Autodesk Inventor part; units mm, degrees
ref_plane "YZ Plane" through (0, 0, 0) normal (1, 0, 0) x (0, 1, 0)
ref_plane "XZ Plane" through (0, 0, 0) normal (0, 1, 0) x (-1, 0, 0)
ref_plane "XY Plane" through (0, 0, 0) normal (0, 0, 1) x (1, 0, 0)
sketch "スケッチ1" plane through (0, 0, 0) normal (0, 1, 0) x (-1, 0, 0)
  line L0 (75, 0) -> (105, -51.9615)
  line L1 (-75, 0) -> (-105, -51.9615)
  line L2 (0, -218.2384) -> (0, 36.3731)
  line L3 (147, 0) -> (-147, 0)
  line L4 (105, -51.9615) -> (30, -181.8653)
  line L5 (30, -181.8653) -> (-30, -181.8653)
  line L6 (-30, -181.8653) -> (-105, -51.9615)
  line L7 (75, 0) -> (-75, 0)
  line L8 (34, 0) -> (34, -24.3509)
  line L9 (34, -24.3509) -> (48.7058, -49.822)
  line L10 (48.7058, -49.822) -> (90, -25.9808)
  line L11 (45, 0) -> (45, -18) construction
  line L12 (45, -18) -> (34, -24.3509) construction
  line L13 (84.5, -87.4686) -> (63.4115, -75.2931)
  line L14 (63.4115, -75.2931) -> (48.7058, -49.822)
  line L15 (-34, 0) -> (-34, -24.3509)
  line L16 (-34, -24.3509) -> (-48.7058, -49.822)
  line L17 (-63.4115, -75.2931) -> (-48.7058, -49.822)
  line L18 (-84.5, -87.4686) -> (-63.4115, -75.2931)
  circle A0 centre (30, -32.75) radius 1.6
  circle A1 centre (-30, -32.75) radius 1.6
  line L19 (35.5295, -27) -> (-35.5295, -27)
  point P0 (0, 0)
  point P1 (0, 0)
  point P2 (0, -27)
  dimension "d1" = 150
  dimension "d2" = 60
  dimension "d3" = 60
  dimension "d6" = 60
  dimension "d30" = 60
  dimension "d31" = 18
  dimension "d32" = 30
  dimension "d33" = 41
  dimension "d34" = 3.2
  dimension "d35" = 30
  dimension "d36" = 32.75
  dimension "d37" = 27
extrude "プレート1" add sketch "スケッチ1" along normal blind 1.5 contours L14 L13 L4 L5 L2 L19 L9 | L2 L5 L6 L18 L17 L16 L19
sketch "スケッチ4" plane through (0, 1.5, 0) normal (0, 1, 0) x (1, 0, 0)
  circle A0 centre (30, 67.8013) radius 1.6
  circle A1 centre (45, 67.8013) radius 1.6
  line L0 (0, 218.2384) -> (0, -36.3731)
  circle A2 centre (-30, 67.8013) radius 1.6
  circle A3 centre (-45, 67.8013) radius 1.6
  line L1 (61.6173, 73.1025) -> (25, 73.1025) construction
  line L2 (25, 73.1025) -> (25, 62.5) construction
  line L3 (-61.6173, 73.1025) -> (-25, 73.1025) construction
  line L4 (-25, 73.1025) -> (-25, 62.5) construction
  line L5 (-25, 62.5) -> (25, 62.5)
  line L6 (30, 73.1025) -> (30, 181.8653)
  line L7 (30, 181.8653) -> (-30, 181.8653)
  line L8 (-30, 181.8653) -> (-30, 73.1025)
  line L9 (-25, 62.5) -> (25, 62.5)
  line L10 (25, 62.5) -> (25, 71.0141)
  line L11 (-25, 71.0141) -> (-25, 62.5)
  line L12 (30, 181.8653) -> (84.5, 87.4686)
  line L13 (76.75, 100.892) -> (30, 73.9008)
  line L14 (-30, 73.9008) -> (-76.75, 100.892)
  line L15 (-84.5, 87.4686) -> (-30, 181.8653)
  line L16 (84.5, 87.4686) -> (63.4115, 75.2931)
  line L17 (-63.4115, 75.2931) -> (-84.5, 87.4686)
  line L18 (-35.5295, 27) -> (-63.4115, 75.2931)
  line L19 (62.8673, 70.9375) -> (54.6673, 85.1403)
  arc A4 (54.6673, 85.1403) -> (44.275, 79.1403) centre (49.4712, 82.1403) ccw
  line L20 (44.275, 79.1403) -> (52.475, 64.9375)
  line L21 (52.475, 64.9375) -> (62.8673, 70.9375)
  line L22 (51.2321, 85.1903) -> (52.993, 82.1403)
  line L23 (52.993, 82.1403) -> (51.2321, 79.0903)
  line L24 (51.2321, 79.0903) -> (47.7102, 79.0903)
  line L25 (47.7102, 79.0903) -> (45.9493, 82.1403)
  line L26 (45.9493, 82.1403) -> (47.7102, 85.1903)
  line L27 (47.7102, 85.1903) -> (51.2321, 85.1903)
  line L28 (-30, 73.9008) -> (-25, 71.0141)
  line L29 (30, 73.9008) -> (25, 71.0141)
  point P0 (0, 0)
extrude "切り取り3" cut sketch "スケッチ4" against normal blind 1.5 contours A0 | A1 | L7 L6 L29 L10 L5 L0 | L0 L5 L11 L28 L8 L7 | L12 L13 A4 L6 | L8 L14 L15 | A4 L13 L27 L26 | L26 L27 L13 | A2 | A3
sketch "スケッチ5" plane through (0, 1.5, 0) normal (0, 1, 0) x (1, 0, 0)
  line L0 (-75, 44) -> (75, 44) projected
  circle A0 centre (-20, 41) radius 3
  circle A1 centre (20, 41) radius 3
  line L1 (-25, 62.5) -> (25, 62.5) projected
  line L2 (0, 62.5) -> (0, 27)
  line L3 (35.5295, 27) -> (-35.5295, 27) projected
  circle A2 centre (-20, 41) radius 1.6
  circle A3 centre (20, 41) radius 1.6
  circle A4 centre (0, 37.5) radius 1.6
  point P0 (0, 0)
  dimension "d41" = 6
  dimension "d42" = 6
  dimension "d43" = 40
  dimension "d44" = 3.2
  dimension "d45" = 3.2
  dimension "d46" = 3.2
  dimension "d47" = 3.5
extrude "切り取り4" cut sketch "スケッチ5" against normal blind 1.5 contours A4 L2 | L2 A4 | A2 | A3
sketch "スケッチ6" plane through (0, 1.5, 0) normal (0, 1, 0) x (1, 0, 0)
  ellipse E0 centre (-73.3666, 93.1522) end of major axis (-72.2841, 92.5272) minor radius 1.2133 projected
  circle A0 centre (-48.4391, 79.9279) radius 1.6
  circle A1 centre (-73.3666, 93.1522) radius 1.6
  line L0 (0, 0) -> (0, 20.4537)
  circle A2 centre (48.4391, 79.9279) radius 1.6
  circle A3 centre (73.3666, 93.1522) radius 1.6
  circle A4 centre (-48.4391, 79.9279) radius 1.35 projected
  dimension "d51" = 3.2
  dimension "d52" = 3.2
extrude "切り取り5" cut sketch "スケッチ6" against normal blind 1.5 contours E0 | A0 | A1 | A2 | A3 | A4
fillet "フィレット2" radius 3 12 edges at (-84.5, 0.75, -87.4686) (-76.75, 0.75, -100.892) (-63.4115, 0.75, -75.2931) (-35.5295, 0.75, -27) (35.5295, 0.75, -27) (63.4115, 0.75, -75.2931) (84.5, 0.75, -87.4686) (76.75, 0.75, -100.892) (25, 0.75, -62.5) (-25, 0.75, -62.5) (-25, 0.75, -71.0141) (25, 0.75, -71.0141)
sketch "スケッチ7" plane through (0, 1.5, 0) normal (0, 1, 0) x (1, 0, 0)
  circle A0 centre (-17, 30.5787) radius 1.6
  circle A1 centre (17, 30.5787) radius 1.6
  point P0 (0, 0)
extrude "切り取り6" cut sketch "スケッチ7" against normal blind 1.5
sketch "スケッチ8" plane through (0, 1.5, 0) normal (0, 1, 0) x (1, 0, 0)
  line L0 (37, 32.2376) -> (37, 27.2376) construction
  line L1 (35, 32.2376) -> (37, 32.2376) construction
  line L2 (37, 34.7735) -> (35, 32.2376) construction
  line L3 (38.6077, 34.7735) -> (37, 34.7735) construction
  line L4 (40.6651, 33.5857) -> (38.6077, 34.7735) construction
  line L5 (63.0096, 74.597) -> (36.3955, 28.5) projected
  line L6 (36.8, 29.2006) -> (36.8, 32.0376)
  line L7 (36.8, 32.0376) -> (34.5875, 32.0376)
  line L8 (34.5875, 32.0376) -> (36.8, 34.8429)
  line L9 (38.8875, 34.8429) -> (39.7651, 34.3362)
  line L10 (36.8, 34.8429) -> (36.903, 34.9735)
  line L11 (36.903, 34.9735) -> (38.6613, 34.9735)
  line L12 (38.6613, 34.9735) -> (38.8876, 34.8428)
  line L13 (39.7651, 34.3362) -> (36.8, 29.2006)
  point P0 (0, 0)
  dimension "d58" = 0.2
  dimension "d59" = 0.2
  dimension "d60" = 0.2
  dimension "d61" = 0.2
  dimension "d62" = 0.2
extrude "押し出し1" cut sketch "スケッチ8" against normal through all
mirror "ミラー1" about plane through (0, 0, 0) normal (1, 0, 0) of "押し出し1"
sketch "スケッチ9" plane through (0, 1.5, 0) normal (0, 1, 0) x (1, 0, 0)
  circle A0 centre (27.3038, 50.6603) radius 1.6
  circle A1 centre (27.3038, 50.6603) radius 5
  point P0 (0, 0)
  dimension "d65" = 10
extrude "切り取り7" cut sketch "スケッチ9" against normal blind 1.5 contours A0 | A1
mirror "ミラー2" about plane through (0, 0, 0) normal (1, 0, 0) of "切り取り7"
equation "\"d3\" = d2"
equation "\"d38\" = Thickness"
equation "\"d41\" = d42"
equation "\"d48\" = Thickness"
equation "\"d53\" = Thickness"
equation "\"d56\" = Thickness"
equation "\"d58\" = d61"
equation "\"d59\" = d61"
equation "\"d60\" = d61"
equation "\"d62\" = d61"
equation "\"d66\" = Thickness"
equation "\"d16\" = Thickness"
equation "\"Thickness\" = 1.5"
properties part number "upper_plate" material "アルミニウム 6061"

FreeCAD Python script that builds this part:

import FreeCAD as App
import Part
import Sketcher
Q = App.Units.Quantity


def edges_at(feature, points):
    """Names of the edges that pass closest to the given points."""
    edges = feature.Shape.Edges
    near = lambda p: min(range(len(edges)), key=lambda i: edges[i].distToShape(Part.Vertex(*p))[0])
    return sorted({f"Edge{near(p) + 1}" for p in points})


def add_polygon(sketch, points):
    """Adds a closed chain of lines whose ends are joined by coincident constraints."""
    first, n = sketch.GeometryCount, len(points)
    for a, b in zip(points, points[1:] + points[:1]):
        sketch.addGeometry(Part.LineSegment(App.Vector(*a, 0), App.Vector(*b, 0)), False)
    for i in range(n):
        sketch.addConstraint(Sketcher.Constraint("Coincident", first + i, 2, first + (i + 1) % n, 1))

doc = App.newDocument("Part")
body = doc.addObject("PartDesign::Body", "Body")

sketch1 = body.newObject("Sketcher::SketchObject", "Sketch")
sketch1.AttachmentSupport = (doc.getObject("XZ_Plane"), [""])
sketch1.MapMode = "FlatFace"
add_polygon(sketch1, [(-63.4, -75.3), (-48.7, -49.8), (-35.5, -27), (35.5, -27), (48.7, -49.8), (63.4, -75.3), (84.5, -87.5), (30, -181.9), (-30, -181.9), (-84.5, -87.5)])
sketch1.addGeometry(Part.Circle(App.Vector(-30, -32.8, 0), App.Vector(0, 0, 1), 1.6), False)
sketch1.addGeometry(Part.Circle(App.Vector(30, -32.8, 0), App.Vector(0, 0, 1), 1.6), False)
sketch1.addConstraint([
    Sketcher.Constraint("Horizontal", 2),
    Sketcher.Constraint("Horizontal", 7),
    Sketcher.Constraint("Equal", 10, 11),
    Sketcher.Constraint("Symmetric", 10, 3, 11, 3, -2),
    Sketcher.Constraint("Symmetric", 0, 2, 3, 2, -2),
    Sketcher.Constraint("Symmetric", 5, 2, 8, 2, -2),
    Sketcher.Constraint("Symmetric", 4, 2, 9, 2, -2),
    Sketcher.Constraint("Parallel", 0, 1),
    Sketcher.Constraint("Parallel", 3, 4),
    Sketcher.Constraint("Perpendicular", 1, 5),
    Sketcher.Constraint("Perpendicular", 5, 6),
    Sketcher.Constraint("Parallel", 4, 8),
    Sketcher.Constraint("Vertical", 11, 3, 6, 2),
    Sketcher.Constraint("Diameter", 10, Q("3.2 mm")),
    Sketcher.Constraint("DistanceX", 7, 2, 7, 1, Q("60 mm")),
    Sketcher.Constraint("Angle", 0, Q("60 deg")),
    Sketcher.Constraint("DistanceY", 1, 2, -1, 1, Q("27 mm")),
    Sketcher.Constraint("DistanceY", 10, 3, -1, 1, Q("32.75 mm")),
    Sketcher.Constraint("Distance", 6, Q("109 mm")),
    Sketcher.Constraint("DistanceX", 2, 1, 2, 2, Q("71.059 mm")),
    Sketcher.Constraint("Distance", 5, Q("24.351 mm")),
    Sketcher.Constraint("DistanceY", 0, 2, -1, 1, Q("49.822 mm")),
])
pad1 = body.newObject("PartDesign::Pad", "Pad")
pad1.Profile = sketch1
pad1.Length = 1.5
pad1.Reversed = True

sketch2 = body.newObject("Sketcher::SketchObject", "Sketch001")
sketch2.AttachmentSupport = (doc.getObject("XZ_Plane"), [""])
sketch2.MapMode = "FlatFace"
sketch2.AttachmentOffset = App.Placement(App.Vector(0, 0, -1.5), App.Rotation())
sketch2.addGeometry(Part.Circle(App.Vector(30, -67.8, 0), App.Vector(0, 0, 1), 1.6), False)
sketch2.addGeometry(Part.Circle(App.Vector(45, -67.8, 0), App.Vector(0, 0, 1), 1.6), False)
add_polygon(sketch2, [(30, -181.9), (-30, -181.9), (-76.8, -100.9), (-30, -73.9), (-25, -71), (-25, -62.5), (25, -62.5), (25, -71), (30, -73.9), (76.7, -100.9)])
sketch2.addGeometry(Part.Circle(App.Vector(-30, -67.8, 0), App.Vector(0, 0, 1), 1.6), False)
sketch2.addGeometry(Part.Circle(App.Vector(-45, -67.8, 0), App.Vector(0, 0, 1), 1.6), False)
sketch2.addConstraint([
    Sketcher.Constraint("Horizontal", 2),
    Sketcher.Constraint("Vertical", 6),
    Sketcher.Constraint("Horizontal", 7),
    Sketcher.Constraint("Vertical", 8),
    Sketcher.Constraint("Equal", 0, 1),
    Sketcher.Constraint("Equal", 1, 12),
    Sketcher.Constraint("Equal", 12, 13),
    Sketcher.Constraint("Symmetric", 0, 3, 12, 3, -2),
    Sketcher.Constraint("Symmetric", 1, 3, 13, 3, -2),
    Sketcher.Constraint("Symmetric", 5, 2, 8, 2, -2),
    Sketcher.Constraint("Symmetric", 4, 2, 9, 2, -2),
    Sketcher.Constraint("Symmetric", 3, 2, 10, 2, -2),
    Sketcher.Constraint("Perpendicular", 3, 4),
    Sketcher.Constraint("Parallel", 4, 5),
    Sketcher.Constraint("Perpendicular", 10, 11),
    Sketcher.Constraint("Horizontal", 0, 3, 1, 3),
    Sketcher.Constraint("Vertical", 12, 3, 2, 2),
    Sketcher.Constraint("Vertical", 2, 2, 4, 2),
    Sketcher.Constraint("Diameter", 0, Q("3.2 mm")),
    Sketcher.Constraint("DistanceX", 2, 2, 2, 1, Q("60 mm")),
    Sketcher.Constraint("DistanceX", 7, 1, 7, 2, Q("50 mm")),
    Sketcher.Constraint("Angle", 3, Q("120 deg")),
    Sketcher.Constraint("DistanceX", -1, 1, 1, 3, Q("45 mm")),
    Sketcher.Constraint("Distance", 3, Q("93.5 mm")),
    Sketcher.Constraint("DistanceY", 6, 2, -1, 1, Q("62.5 mm")),
    Sketcher.Constraint("DistanceY", 6, 1, 6, 2, Q("8.514 mm")),
    Sketcher.Constraint("DistanceY", 2, 2, 12, 3, Q("114.064 mm")),
])
pocket1 = body.newObject("PartDesign::Pocket", "Pocket")
pocket1.Profile = sketch2
pocket1.Length = 1.5
pocket1.Reversed = True

sketch3 = body.newObject("Sketcher::SketchObject", "Sketch002")
sketch3.AttachmentSupport = (doc.getObject("XZ_Plane"), [""])
sketch3.MapMode = "FlatFace"
sketch3.AttachmentOffset = App.Placement(App.Vector(0, 0, -1.5), App.Rotation())
sketch3.addGeometry([
    Part.Circle(App.Vector(0, -37.5, 0), App.Vector(0, 0, 1), 1.6),
    Part.Circle(App.Vector(-20, -41, 0), App.Vector(0, 0, 1), 1.6),
    Part.Circle(App.Vector(20, -41, 0), App.Vector(0, 0, 1), 1.6),
], False)
sketch3.addConstraint([
    Sketcher.Constraint("Equal", 0, 1),
    Sketcher.Constraint("Equal", 1, 2),
    Sketcher.Constraint("Symmetric", 1, 3, 2, 3, -2),
    Sketcher.Constraint("PointOnObject", 0, 3, -2),
    Sketcher.Constraint("Diameter", 0, Q("3.2 mm")),
    Sketcher.Constraint("DistanceX", 1, 3, 2, 3, Q("40 mm")),
    Sketcher.Constraint("DistanceY", 1, 3, 0, 3, Q("3.5 mm")),
    Sketcher.Constraint("DistanceY", 1, 3, -1, 1, Q("41 mm")),
])
pocket2 = body.newObject("PartDesign::Pocket", "Pocket001")
pocket2.Profile = sketch3
pocket2.Length = 1.5
pocket2.Reversed = True

sketch4 = body.newObject("Sketcher::SketchObject", "Sketch003")
sketch4.AttachmentSupport = (doc.getObject("XZ_Plane"), [""])
sketch4.MapMode = "FlatFace"
sketch4.AttachmentOffset = App.Placement(App.Vector(0, 0, -1.5), App.Rotation())
sketch4.addGeometry([
    Part.Circle(App.Vector(-73.4, -93.2, 0), App.Vector(0, 0, 1), 1.6),
    Part.Circle(App.Vector(-48.4, -79.9, 0), App.Vector(0, 0, 1), 1.6),
    Part.Circle(App.Vector(48.4, -79.9, 0), App.Vector(0, 0, 1), 1.6),
    Part.Circle(App.Vector(73.4, -93.2, 0), App.Vector(0, 0, 1), 1.6),
], False)
sketch4.addConstraint([
    Sketcher.Constraint("Equal", 0, 1),
    Sketcher.Constraint("Equal", 1, 2),
    Sketcher.Constraint("Equal", 2, 3),
    Sketcher.Constraint("Symmetric", 1, 3, 2, 3, -2),
    Sketcher.Constraint("Symmetric", 0, 3, 3, 3, -2),
    Sketcher.Constraint("Diameter", 0, Q("3.2 mm")),
    Sketcher.Constraint("DistanceX", 1, 3, -1, 1, Q("48.439 mm")),
    Sketcher.Constraint("DistanceY", 1, 3, -1, 1, Q("79.928 mm")),
    Sketcher.Constraint("DistanceX", 0, 3, -1, 1, Q("73.3666 mm")),
    Sketcher.Constraint("DistanceY", 0, 3, -1, 1, Q("93.1522 mm")),
])
pocket3 = body.newObject("PartDesign::Pocket", "Pocket002")
pocket3.Profile = sketch4
pocket3.Length = 1.5
pocket3.Reversed = True
doc.recompute()

fillet = body.newObject("PartDesign::Fillet", "Fillet")
fillet.Base = (pocket3, edges_at(pocket3, [
    (-84.5, 0.75, -87.469),
    (-76.75, 0.75, -100.892),
    (-63.411, 0.75, -75.293),
    (-35.529, 0.75, -27),
    (35.529, 0.75, -27),
    (63.411, 0.75, -75.293),
    (84.5, 0.75, -87.469),
    (76.75, 0.75, -100.892),
    (25, 0.75, -62.5),
    (-25, 0.75, -62.5),
    (-25, 0.75, -71.014),
    (25, 0.75, -71.014),
]))
fillet.Radius = 3

sketch5 = body.newObject("Sketcher::SketchObject", "Sketch004")
sketch5.AttachmentSupport = (doc.getObject("XZ_Plane"), [""])
sketch5.MapMode = "FlatFace"
sketch5.AttachmentOffset = App.Placement(App.Vector(0, 0, -1.5), App.Rotation())
sketch5.addGeometry([
    Part.Circle(App.Vector(-17, -30.6, 0), App.Vector(0, 0, 1), 1.6),
    Part.Circle(App.Vector(17, -30.6, 0), App.Vector(0, 0, 1), 1.6),
], False)
sketch5.addConstraint([
    Sketcher.Constraint("Equal", 0, 1),
    Sketcher.Constraint("Symmetric", 0, 3, 1, 3, -2),
    Sketcher.Constraint("Diameter", 0, Q("3.2 mm")),
    Sketcher.Constraint("DistanceX", 0, 3, -1, 1, Q("17 mm")),
    Sketcher.Constraint("DistanceY", 0, 3, -1, 1, Q("30.5787 mm")),
])
pocket4 = body.newObject("PartDesign::Pocket", "Pocket003")
pocket4.Profile = sketch5
pocket4.Length = 1.5
pocket4.Reversed = True

sketch6 = body.newObject("Sketcher::SketchObject", "Sketch005")
sketch6.AttachmentSupport = (doc.getObject("XZ_Plane"), [""])
sketch6.MapMode = "FlatFace"
sketch6.AttachmentOffset = App.Placement(App.Vector(0, 0, -1.5), App.Rotation())
add_polygon(sketch6, [(36.8, -29.2), (39.77, -34.34), (38.89, -34.84), (38.66, -34.97), (36.9, -34.97), (36.8, -34.84), (34.59, -32.04), (36.8, -32.04)])
sketch6.addConstraint([
    Sketcher.Constraint("Horizontal", 3),
    Sketcher.Constraint("Horizontal", 6),
    Sketcher.Constraint("Vertical", 7),
    Sketcher.Constraint("Perpendicular", 0, 1),
    Sketcher.Constraint("Parallel", 1, 2),
    Sketcher.Constraint("Parallel", 4, 5),
    Sketcher.Constraint("Horizontal", 1, 2, 4, 2),
    Sketcher.Constraint("Vertical", 4, 2, 6, 2),
    Sketcher.Constraint("Angle", 0, Q("-60 deg")),
    Sketcher.Constraint("DistanceX", -1, 1, 4, 2, Q("36.8 mm")),
    Sketcher.Constraint("DistanceX", 5, 2, 1, 2, Q("4.3 mm")),
    Sketcher.Constraint("Distance", 0, Q("5.93 mm")),
    Sketcher.Constraint("DistanceY", 7, 1, 7, 2, Q("2.837 mm")),
    Sketcher.Constraint("DistanceX", 3, 2, 3, 1, Q("1.7583 mm")),
    Sketcher.Constraint("DistanceX", 6, 1, 6, 2, Q("2.2125 mm")),
    Sketcher.Constraint("DistanceY", 1, 2, -1, 1, Q("34.843 mm")),
])
pocket5 = body.newObject("PartDesign::Pocket", "Pocket004")
pocket5.Profile = sketch6
pocket5.Type = "ThroughAll"
pocket5.Reversed = True
doc.recompute()

mirrored = body.newObject("PartDesign::Mirrored", "Mirrored")
mirrored.Originals = [pocket5]
mirrored.MirrorPlane = (doc.getObject("YZ_Plane"), [""])
body.Tip = mirrored

sketch7 = body.newObject("Sketcher::SketchObject", "Sketch006")
sketch7.AttachmentSupport = (doc.getObject("XZ_Plane"), [""])
sketch7.MapMode = "FlatFace"
sketch7.AttachmentOffset = App.Placement(App.Vector(0, 0, -1.5), App.Rotation())
sketch7.addGeometry(Part.Circle(App.Vector(27, -51, 0), App.Vector(0, 0, 1), 5), False)
sketch7.addConstraint([
    Sketcher.Constraint("Diameter", 0, Q("10 mm")),
    Sketcher.Constraint("DistanceX", -1, 1, 0, 3, Q("27.3038 mm")),
    Sketcher.Constraint("DistanceY", 0, 3, -1, 1, Q("50.6603 mm")),
])
pocket6 = body.newObject("PartDesign::Pocket", "Pocket005")
pocket6.Profile = sketch7
pocket6.Length = 1.5
pocket6.Reversed = True
doc.recompute()

mirrored2 = body.newObject("PartDesign::Mirrored", "Mirrored001")
mirrored2.Originals = [pocket6]
mirrored2.MirrorPlane = (doc.getObject("YZ_Plane"), [""])
body.Tip = mirrored2

doc.recompute()
